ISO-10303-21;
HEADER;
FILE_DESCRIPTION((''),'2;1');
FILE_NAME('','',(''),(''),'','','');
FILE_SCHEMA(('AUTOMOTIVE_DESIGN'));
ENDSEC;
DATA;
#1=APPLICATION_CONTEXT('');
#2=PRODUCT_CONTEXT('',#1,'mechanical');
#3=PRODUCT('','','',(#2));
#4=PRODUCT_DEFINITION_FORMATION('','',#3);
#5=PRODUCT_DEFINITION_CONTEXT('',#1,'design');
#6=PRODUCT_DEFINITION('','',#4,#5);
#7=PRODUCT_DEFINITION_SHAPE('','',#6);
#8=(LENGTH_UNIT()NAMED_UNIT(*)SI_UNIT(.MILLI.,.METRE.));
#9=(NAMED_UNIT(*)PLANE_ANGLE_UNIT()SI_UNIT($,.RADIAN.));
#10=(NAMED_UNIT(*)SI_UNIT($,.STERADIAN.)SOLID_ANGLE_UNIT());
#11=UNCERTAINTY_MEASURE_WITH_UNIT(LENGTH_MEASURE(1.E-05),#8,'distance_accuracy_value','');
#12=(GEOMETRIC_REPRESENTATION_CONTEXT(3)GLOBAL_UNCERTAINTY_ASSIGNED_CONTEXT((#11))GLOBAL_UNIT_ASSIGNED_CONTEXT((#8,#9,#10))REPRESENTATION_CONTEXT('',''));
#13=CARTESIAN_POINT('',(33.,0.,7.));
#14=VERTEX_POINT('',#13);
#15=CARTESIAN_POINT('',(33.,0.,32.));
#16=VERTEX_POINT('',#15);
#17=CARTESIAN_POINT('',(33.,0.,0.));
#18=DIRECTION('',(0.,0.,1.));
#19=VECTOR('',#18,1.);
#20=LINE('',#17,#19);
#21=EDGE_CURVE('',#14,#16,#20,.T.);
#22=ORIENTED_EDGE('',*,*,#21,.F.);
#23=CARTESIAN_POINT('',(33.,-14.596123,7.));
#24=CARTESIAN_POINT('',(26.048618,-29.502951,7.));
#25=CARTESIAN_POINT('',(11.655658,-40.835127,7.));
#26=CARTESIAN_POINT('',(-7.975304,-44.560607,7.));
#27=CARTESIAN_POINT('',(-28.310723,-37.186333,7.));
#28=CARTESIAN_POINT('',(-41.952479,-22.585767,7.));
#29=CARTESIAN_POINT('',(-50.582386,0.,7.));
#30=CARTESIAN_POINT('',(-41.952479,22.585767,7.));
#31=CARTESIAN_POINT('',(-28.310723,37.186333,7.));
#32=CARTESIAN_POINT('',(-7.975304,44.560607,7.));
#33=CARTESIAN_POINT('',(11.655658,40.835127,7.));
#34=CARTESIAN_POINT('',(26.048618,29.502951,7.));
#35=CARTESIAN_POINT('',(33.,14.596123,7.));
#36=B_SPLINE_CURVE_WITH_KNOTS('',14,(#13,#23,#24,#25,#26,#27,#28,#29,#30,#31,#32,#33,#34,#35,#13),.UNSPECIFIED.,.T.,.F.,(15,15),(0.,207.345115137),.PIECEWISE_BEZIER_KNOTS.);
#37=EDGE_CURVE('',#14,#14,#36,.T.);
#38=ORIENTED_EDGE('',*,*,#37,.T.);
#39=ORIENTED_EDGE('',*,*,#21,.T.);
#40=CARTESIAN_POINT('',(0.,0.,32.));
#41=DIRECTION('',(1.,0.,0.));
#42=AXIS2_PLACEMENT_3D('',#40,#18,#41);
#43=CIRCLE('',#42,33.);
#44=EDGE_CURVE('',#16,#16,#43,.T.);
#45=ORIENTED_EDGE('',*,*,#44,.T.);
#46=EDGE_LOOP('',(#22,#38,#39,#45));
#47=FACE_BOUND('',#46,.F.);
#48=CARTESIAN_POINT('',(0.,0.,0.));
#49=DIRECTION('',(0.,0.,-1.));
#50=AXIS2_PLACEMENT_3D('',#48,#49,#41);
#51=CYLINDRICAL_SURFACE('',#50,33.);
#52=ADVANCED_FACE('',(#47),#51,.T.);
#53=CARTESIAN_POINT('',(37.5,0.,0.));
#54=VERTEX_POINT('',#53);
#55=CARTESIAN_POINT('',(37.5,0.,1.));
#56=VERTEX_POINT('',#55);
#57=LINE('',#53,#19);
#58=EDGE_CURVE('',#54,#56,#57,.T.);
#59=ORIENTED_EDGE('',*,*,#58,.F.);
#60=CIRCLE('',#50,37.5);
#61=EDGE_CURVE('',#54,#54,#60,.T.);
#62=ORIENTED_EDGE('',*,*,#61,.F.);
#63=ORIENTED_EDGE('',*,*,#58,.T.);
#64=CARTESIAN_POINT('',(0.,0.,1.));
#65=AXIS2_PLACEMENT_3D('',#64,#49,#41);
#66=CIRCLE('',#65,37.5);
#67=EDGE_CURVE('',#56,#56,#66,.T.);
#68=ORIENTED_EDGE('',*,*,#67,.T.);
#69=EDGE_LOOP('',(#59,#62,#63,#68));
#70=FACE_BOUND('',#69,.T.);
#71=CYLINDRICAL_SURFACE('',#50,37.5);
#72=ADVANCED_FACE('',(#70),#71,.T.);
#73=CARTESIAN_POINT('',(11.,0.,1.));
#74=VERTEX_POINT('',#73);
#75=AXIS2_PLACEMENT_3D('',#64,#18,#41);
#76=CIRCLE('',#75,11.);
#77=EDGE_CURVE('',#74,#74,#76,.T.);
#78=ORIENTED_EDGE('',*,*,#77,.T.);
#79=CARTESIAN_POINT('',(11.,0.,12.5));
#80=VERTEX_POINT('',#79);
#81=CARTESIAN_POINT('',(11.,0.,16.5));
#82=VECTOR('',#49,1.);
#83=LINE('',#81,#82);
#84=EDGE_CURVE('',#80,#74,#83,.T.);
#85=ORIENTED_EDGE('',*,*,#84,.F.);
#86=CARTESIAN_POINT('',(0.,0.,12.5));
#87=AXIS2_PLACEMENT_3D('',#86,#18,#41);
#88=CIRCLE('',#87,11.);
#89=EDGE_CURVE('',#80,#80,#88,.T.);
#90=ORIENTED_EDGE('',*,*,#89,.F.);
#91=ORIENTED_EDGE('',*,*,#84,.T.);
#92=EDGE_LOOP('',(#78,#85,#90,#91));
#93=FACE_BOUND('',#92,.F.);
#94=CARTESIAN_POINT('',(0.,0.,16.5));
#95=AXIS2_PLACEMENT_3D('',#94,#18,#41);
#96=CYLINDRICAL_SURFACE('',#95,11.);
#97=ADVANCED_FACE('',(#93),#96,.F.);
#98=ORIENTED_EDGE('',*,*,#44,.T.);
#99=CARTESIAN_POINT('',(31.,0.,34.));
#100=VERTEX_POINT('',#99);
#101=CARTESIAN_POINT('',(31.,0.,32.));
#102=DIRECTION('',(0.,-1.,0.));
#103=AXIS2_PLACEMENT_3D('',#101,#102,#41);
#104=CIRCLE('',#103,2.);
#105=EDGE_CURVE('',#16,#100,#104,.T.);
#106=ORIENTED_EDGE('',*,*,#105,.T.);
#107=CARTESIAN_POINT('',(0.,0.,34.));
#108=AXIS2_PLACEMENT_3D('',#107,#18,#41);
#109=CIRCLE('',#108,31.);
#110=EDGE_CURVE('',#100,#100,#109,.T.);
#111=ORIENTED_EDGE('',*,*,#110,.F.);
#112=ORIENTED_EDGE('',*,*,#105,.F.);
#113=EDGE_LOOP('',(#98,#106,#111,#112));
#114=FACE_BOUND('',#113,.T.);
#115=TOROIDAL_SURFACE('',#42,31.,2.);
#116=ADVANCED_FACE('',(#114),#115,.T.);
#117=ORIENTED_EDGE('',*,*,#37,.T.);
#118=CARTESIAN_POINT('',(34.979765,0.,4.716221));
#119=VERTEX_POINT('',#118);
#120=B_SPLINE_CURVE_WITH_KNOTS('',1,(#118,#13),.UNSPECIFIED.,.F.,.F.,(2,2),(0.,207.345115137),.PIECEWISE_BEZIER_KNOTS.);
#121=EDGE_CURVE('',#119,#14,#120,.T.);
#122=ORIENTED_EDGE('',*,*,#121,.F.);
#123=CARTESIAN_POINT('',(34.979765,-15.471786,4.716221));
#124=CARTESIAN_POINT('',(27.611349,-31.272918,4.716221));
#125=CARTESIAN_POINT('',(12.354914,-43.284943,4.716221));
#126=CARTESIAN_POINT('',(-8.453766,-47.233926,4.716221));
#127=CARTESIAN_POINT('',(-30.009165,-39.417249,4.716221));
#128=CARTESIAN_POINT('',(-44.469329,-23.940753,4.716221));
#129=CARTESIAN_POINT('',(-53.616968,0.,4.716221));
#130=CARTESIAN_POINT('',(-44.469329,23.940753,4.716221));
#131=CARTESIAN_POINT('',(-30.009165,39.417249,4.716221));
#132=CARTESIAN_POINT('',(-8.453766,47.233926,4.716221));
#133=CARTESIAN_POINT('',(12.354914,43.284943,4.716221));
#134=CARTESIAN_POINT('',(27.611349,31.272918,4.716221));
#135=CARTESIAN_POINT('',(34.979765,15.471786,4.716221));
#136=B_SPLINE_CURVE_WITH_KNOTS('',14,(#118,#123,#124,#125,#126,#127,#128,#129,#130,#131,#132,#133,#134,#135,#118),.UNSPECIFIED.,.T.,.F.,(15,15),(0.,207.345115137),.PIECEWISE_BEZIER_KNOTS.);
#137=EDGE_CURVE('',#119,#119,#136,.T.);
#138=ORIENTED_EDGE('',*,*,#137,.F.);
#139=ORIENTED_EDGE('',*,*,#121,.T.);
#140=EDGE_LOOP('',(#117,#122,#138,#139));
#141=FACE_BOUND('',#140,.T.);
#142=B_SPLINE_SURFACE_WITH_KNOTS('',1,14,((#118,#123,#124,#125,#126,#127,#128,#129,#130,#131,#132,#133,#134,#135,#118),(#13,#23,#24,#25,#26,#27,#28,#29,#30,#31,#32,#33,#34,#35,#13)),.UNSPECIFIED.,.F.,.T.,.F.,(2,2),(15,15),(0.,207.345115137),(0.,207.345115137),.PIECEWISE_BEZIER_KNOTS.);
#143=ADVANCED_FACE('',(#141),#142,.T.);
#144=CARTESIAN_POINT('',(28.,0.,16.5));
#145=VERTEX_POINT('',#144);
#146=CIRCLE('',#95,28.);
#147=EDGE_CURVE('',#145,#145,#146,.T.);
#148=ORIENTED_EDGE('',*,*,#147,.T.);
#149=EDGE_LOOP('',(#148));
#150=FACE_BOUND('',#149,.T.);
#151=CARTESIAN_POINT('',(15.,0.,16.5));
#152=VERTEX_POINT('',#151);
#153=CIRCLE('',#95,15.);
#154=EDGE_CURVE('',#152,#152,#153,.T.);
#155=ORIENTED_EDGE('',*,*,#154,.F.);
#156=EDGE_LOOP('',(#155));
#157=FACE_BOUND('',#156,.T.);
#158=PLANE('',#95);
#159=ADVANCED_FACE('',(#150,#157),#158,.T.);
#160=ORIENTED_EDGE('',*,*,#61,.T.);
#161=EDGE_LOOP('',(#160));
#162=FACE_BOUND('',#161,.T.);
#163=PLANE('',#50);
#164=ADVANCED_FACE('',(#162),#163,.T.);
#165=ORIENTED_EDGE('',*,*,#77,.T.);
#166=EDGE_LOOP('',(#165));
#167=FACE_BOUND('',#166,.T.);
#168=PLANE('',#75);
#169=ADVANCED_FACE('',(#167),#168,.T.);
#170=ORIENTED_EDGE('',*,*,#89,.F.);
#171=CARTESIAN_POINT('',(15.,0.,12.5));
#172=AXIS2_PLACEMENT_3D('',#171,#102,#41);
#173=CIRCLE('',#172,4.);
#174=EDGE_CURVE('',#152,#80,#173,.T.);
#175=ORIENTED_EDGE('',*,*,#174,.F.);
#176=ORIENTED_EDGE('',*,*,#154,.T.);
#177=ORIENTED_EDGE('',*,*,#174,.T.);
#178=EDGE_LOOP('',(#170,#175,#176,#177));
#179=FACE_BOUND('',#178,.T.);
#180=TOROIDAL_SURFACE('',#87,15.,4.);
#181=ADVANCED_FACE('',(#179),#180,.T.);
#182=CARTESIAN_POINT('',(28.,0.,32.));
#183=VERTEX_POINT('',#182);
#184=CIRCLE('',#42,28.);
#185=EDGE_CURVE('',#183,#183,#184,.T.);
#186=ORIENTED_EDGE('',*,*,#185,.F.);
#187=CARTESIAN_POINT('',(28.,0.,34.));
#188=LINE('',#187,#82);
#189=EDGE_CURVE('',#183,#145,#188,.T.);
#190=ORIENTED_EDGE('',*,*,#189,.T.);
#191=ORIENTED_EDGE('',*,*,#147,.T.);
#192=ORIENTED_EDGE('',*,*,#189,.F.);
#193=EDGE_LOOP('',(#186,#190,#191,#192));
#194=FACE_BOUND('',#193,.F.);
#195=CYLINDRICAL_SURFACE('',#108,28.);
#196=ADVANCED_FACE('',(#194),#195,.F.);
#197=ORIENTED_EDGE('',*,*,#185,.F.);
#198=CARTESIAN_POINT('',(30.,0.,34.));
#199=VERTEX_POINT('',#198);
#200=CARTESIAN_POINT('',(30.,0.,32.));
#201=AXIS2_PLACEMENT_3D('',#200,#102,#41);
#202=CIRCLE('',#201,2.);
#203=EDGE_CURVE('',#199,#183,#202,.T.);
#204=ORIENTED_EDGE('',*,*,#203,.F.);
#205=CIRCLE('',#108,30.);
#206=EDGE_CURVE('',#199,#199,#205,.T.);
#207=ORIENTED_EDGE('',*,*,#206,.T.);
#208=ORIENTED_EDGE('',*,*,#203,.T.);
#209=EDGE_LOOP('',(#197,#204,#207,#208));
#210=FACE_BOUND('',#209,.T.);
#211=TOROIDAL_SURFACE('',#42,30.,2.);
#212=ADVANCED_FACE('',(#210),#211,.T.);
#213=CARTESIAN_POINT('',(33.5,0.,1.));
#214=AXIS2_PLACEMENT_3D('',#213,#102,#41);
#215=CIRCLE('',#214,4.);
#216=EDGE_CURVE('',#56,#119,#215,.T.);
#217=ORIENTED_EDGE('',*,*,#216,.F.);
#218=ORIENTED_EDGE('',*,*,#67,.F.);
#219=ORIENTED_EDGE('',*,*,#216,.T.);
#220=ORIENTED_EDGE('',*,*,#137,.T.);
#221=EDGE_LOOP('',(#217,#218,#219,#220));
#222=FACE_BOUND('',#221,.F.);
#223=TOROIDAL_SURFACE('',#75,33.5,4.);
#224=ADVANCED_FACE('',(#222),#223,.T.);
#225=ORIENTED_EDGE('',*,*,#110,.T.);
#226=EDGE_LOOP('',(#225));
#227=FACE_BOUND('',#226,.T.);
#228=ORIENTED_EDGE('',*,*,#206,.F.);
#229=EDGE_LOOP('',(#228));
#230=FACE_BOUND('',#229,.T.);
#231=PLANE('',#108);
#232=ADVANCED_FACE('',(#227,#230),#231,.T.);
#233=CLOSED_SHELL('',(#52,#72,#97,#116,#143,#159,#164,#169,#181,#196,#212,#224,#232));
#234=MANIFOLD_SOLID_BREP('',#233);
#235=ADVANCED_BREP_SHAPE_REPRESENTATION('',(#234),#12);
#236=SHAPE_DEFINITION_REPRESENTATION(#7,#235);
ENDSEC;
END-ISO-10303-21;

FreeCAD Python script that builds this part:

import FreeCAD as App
import Part
import Sketcher
from FreeCAD import Vector
Q = App.Units.Quantity


def edges_at(feature, points):
    """Names of the edges that pass closest to the given points."""
    edges = feature.Shape.Edges
    near = lambda p: min(range(len(edges)), key=lambda i: edges[i].distToShape(Part.Vertex(*p))[0])
    return sorted({f"Edge{near(p) + 1}" for p in points})

doc = App.newDocument("Part")
body = doc.addObject("PartDesign::Body", "Body")

# Sketch on XY plane
sketch1 = doc.addObject("Sketcher::SketchObject", "Sketch")
body.addObject(sketch1)
sketch1.AttachmentSupport = (doc.XY_Plane, [""])
sketch1.MapMode = "FlatFace"
sketch1.addGeometry(Part.Circle(Vector(0, 0, 0), Vector(0, 0, 1), 33), False)
sketch1.addConstraint([
    Sketcher.Constraint("Coincident", 0, 3, -1, 1),
    Sketcher.Constraint("Diameter", 0, Q("66 mm")),
])
pad1 = doc.addObject("PartDesign::Pad", "Pad")
body.addObject(pad1)
pad1.Profile = sketch1
pad1.Length = 34

# Sketch on XY plane
sketch2 = doc.addObject("Sketcher::SketchObject", "Sketch001")
body.addObject(sketch2)
sketch2.AttachmentSupport = (doc.XY_Plane, [""])
sketch2.MapMode = "FlatFace"
sketch2.AttachmentOffset = App.Placement(Vector(0, 0, 34), App.Rotation())
sketch2.addGeometry(Part.Circle(Vector(0, 0, 0), Vector(0, 0, 1), 28), False)
sketch2.addConstraint([
    Sketcher.Constraint("Coincident", 0, 3, -1, 1),
    Sketcher.Constraint("Diameter", 0, Q("56 mm")),
])
pocket1 = doc.addObject("PartDesign::Pocket", "Pocket")
body.addObject(pocket1)
pocket1.Profile = sketch2
pocket1.Length = 17.5

# Sketch on XY plane
sketch3 = doc.addObject("Sketcher::SketchObject", "Sketch002")
body.addObject(sketch3)
sketch3.AttachmentSupport = (doc.XY_Plane, [""])
sketch3.MapMode = "FlatFace"
sketch3.AttachmentOffset = App.Placement(Vector(0, 0, 16.5), App.Rotation())
sketch3.addGeometry(Part.Circle(Vector(0, 0, 0), Vector(0, 0, 1), 11), False)
sketch3.addConstraint([
    Sketcher.Constraint("Coincident", 0, 3, -1, 1),
    Sketcher.Constraint("Diameter", 0, Q("22 mm")),
])
pocket2 = doc.addObject("PartDesign::Pocket", "Pocket001")
body.addObject(pocket2)
pocket2.Profile = sketch3
pocket2.Length = 15.5

# Sketch on XY plane
sketch4 = doc.addObject("Sketcher::SketchObject", "Sketch003")
body.addObject(sketch4)
sketch4.AttachmentSupport = (doc.XY_Plane, [""])
sketch4.MapMode = "FlatFace"
sketch4.addGeometry([
    Part.Circle(Vector(0, 0, 0), Vector(0, 0, 1), 37.5),
    Part.Circle(Vector(0, 0, 0), Vector(0, 0, 1), 25),
], False)
sketch4.addConstraint([
    Sketcher.Constraint("Coincident", 0, 3, -1, 1),
    Sketcher.Constraint("Coincident", 1, 3, -1, 1),
    Sketcher.Constraint("Diameter", 0, Q("75 mm")),
    Sketcher.Constraint("Diameter", 1, Q("50 mm")),
])
pad2 = doc.addObject("PartDesign::Pad", "Pad001")
body.addObject(pad2)
pad2.Profile = sketch4
pad2.Length = 5
doc.recompute()

fillet = doc.addObject("PartDesign::Fillet", "Fillet")
body.addObject(fillet)
fillet.Base = (pad2, edges_at(pad2, [(-37.5, 0, 5)]))
fillet.Radius = 4
doc.recompute()

chamfer = doc.addObject("PartDesign::Chamfer", "Chamfer")
body.addObject(chamfer)
chamfer.Base = (fillet, edges_at(fillet, [(-33, 0, 5)]))
chamfer.Size = 2
doc.recompute()

fillet2 = doc.addObject("PartDesign::Fillet", "Fillet001")
body.addObject(fillet2)
fillet2.Base = (chamfer, edges_at(chamfer, [(-33, 0, 34)]))
fillet2.Radius = 2
doc.recompute()

fillet3 = doc.addObject("PartDesign::Fillet", "Fillet002")
body.addObject(fillet3)
fillet3.Base = (fillet2, edges_at(fillet2, [(-28, 0, 34)]))
fillet3.Radius = 2
doc.recompute()

fillet4 = doc.addObject("PartDesign::Fillet", "Fillet003")
body.addObject(fillet4)
fillet4.Base = (fillet3, edges_at(fillet3, [(-11, 0, 16.5)]))
fillet4.Radius = 4

doc.recompute()
